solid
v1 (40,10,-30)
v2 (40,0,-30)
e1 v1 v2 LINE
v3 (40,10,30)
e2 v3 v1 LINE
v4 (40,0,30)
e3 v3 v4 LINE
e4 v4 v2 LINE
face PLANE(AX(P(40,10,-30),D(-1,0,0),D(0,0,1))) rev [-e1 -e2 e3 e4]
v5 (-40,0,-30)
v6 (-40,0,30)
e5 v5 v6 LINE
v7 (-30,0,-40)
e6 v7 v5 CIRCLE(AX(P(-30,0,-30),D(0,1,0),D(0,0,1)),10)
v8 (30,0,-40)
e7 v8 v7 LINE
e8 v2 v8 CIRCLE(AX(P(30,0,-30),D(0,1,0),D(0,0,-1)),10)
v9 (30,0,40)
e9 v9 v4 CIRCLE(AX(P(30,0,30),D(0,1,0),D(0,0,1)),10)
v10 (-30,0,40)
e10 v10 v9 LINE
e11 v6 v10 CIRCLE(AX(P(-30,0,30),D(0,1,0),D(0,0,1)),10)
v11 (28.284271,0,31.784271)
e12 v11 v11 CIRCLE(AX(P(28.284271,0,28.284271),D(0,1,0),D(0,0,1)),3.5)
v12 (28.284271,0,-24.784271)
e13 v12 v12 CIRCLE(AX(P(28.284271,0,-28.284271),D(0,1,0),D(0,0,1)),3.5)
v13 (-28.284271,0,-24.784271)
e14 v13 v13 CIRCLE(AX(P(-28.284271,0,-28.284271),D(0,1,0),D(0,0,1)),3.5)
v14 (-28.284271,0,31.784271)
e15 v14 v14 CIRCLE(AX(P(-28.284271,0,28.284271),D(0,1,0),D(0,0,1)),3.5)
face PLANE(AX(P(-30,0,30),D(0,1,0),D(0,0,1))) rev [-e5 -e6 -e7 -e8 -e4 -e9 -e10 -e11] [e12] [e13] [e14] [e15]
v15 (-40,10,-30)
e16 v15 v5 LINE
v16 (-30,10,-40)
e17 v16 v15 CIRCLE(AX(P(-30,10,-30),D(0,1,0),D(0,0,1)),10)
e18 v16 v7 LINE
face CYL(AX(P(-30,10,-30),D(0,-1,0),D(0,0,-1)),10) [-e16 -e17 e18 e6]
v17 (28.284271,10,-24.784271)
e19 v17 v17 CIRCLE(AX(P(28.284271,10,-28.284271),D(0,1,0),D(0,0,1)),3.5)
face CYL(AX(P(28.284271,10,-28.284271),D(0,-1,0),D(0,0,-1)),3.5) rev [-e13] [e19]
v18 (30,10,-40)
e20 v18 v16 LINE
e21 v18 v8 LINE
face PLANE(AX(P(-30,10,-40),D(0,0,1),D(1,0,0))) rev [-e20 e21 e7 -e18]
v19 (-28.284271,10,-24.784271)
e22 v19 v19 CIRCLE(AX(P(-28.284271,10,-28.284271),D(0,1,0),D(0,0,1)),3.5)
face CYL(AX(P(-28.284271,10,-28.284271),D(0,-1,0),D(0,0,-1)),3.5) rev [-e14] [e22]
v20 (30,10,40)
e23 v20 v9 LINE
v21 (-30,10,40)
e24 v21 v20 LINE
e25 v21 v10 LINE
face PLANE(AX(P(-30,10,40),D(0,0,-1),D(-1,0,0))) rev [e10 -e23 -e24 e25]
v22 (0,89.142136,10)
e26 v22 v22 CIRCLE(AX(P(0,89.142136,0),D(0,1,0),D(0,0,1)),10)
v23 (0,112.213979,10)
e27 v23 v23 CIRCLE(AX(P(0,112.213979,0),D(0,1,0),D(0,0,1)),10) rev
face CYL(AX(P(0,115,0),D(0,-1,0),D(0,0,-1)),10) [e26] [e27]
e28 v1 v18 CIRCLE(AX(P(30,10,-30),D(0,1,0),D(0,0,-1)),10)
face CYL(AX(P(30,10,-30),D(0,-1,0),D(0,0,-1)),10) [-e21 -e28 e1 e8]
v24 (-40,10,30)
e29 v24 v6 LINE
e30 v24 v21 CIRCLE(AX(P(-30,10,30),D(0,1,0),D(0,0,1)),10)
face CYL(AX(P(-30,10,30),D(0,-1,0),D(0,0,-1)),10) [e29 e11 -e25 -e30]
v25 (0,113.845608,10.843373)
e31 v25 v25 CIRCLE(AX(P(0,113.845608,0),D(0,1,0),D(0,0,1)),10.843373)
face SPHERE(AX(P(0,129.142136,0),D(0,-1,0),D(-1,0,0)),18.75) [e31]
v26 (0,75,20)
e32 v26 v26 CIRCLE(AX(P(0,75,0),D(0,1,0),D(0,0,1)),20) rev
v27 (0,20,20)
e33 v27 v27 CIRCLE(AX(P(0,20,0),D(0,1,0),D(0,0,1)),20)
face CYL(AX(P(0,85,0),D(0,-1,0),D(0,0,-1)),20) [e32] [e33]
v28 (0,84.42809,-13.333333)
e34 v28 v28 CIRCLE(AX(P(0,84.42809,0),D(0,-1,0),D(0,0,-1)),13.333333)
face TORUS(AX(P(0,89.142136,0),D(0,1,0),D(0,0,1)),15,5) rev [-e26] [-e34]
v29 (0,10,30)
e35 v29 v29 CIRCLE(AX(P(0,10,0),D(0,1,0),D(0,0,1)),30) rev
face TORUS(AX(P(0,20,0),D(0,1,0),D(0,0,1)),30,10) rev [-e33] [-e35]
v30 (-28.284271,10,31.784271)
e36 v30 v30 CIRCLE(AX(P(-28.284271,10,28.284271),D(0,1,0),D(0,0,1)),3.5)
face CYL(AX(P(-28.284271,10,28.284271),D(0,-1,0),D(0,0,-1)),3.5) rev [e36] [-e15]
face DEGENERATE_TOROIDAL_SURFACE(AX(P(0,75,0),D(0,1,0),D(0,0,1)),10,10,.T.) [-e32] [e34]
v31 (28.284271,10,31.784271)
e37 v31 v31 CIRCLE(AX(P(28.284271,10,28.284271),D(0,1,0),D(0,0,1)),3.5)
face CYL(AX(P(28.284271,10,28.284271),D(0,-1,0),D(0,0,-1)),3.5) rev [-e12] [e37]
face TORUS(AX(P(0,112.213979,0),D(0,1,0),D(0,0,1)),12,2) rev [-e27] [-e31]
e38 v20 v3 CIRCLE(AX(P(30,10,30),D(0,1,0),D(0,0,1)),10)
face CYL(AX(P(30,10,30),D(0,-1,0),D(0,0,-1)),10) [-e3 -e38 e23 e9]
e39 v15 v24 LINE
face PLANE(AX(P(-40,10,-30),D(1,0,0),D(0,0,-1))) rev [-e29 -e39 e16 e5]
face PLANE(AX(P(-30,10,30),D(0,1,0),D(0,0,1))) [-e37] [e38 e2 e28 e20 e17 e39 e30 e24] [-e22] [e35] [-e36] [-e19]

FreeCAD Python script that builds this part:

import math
import FreeCAD as App
import Part
import Sketcher


def edges_at(feature, points):
    """Names of the edges that pass closest to the given points."""
    edges = feature.Shape.Edges
    near = lambda p: min(range(len(edges)), key=lambda i: edges[i].distToShape(Part.Vertex(*p))[0])
    return sorted({f"Edge{near(p) + 1}" for p in points})

doc = App.newDocument("Part")
body = doc.addObject("PartDesign::Body", "Body")

# Sketch on XZ plane
sketch1 = body.newObject("Sketcher::SketchObject", "Sketch")
sketch1.AttachmentSupport = (doc.getObject("XZ_Plane"), [""])
sketch1.MapMode = "FlatFace"
sketch1.addGeometry([
    Part.LineSegment(App.Vector(30, -40, 0), App.Vector(-30, -40, 0)),  # 0
    Part.ArcOfCircle(Part.Circle(App.Vector(-30, -30, 0), App.Vector(0, 0, 1), 10), math.radians(180), math.radians(270)),  # 1
    Part.LineSegment(App.Vector(-40, -30, 0), App.Vector(-40, 30, 0)),  # 2
    Part.ArcOfCircle(Part.Circle(App.Vector(-30, 30, 0), App.Vector(0, 0, 1), 10), math.radians(90), math.radians(180)),  # 3
    Part.LineSegment(App.Vector(-30, 40, 0), App.Vector(30, 40, 0)),  # 4
    Part.ArcOfCircle(Part.Circle(App.Vector(30, 30, 0), App.Vector(0, 0, 1), 10), math.radians(0), math.radians(90)),  # 5
    Part.LineSegment(App.Vector(40, 30, 0), App.Vector(40, -30, 0)),  # 6
    Part.ArcOfCircle(Part.Circle(App.Vector(30, -30, 0), App.Vector(0, 0, 1), 10), math.radians(-90), math.radians(0)),  # 7
    Part.Circle(App.Vector(28.3, 28.3, 0), App.Vector(0, 0, 1), 3.5),  # 8
    Part.Circle(App.Vector(-28.3, 28.3, 0), App.Vector(0, 0, 1), 3.5),  # 9
    Part.Circle(App.Vector(28.3, -28.3, 0), App.Vector(0, 0, 1), 3.5),  # 10
    Part.Circle(App.Vector(-28.3, -28.3, 0), App.Vector(0, 0, 1), 3.5),  # 11
], False)
sketch1.addConstraint([
    Sketcher.Constraint("Tangent", 0, 2, 1, 2),
    Sketcher.Constraint("Tangent", 1, 1, 2, 1),
    Sketcher.Constraint("Tangent", 2, 2, 3, 2),
    Sketcher.Constraint("Tangent", 3, 1, 4, 1),
    Sketcher.Constraint("Tangent", 4, 2, 5, 2),
    Sketcher.Constraint("Tangent", 5, 1, 6, 1),
    Sketcher.Constraint("Tangent", 6, 2, 7, 2),
    Sketcher.Constraint("Tangent", 7, 1, 0, 1),
    Sketcher.Constraint("Horizontal", 0),
    Sketcher.Constraint("Vertical", 2),
    Sketcher.Constraint("Horizontal", 4),
    Sketcher.Constraint("Vertical", 6),
    Sketcher.Constraint("Equal", 1, 3),
    Sketcher.Constraint("Equal", 3, 5),
    Sketcher.Constraint("Equal", 5, 7),
    Sketcher.Constraint("Equal", 8, 9),
    Sketcher.Constraint("Equal", 9, 10),
    Sketcher.Constraint("Equal", 10, 11),
    Sketcher.Constraint("Symmetric", 1, 3, 5, 3, -1, 1),
    Sketcher.Constraint("Symmetric", 9, 3, 10, 3, -1, 1),
    Sketcher.Constraint("Symmetric", 8, 3, 11, 3, -1, 1),
    Sketcher.Constraint("Symmetric", 8, 3, 9, 3, -2),
    Sketcher.Constraint("Equal", 4, 2),
    Sketcher.Constraint("Diameter", 8, 7.0),
    Sketcher.Constraint("Radius", 1, 10.0),
    Sketcher.Constraint("DistanceX", 0, 2, 0, 1, 60.0),
    Sketcher.Constraint("DistanceX", -1, 1, 8, 3, 28.284271),
    Sketcher.Constraint("DistanceY", -1, 1, 8, 3, 28.284271),
])
pad1 = body.newObject("PartDesign::Pad", "Pad")
pad1.Profile = sketch1
pad1.Length = 10
pad1.Reversed = True

# Sketch on XZ plane
sketch2 = body.newObject("Sketcher::SketchObject", "Sketch001")
sketch2.AttachmentSupport = (doc.getObject("XZ_Plane"), [""])
sketch2.MapMode = "FlatFace"
sketch2.AttachmentOffset = App.Placement(App.Vector(0, 0, -10), App.Rotation())
sketch2.addGeometry(Part.Circle(App.Vector(0, 0, 0), App.Vector(0, 0, 1), 20), False)
sketch2.addConstraint([
    Sketcher.Constraint("Coincident", 0, 3, -1, 1),
    Sketcher.Constraint("Diameter", 0, 40.0),
])
pad2 = body.newObject("PartDesign::Pad", "Pad001")
pad2.Profile = sketch2
pad2.Length = 75
pad2.Reversed = True
doc.recompute()

fillet = body.newObject("PartDesign::Fillet", "Fillet")
fillet.Base = (pad2, edges_at(pad2, [(0, 10, -20), (0, 85, -20)]))
fillet.Radius = 10

# Sketch on XZ plane
sketch3 = body.newObject("Sketcher::SketchObject", "Sketch002")
sketch3.AttachmentSupport = (doc.getObject("XZ_Plane"), [""])
sketch3.MapMode = "FlatFace"
sketch3.AttachmentOffset = App.Placement(App.Vector(0, 0, -85), App.Rotation())
sketch3.addGeometry(Part.Circle(App.Vector(0, 0, 0), App.Vector(0, 0, 1), 10), False)
sketch3.addConstraint([
    Sketcher.Constraint("Coincident", 0, 3, -1, 1),
    Sketcher.Constraint("Diameter", 0, 20.0),
])
pad3 = body.newObject("PartDesign::Pad", "Pad002")
pad3.Profile = sketch3
pad3.Length = 30
pad3.Reversed = True
doc.recompute()

fillet2 = body.newObject("PartDesign::Fillet", "Fillet001")
fillet2.Base = (pad3, edges_at(pad3, [(0, 85, -10)]))
fillet2.Radius = 5

# Sketch on XY plane
sketch4 = body.newObject("Sketcher::SketchObject", "Sketch003")
sketch4.AttachmentSupport = (doc.getObject("XY_Plane"), [""])
sketch4.MapMode = "FlatFace"
sketch4.addGeometry([
    Part.LineSegment(App.Vector(0, 148, 0), App.Vector(0, 110, 0)),
    Part.ArcOfCircle(Part.Circle(App.Vector(0, 129, 0), App.Vector(0, 0, 1), 19), math.radians(-90), math.radians(90)),
], False)
sketch4.addConstraint([
    Sketcher.Constraint("Coincident", 0, 1, 1, 2),
    Sketcher.Constraint("Coincident", 1, 1, 0, 2),
    Sketcher.Constraint("Vertical", 0),
    Sketcher.Constraint("PointOnObject", 1, 3, -2),
    Sketcher.Constraint("PointOnObject", 0, 1, -2),
    Sketcher.Constraint("Radius", 1, 18.75),
    Sketcher.Constraint("DistanceY", -1, 1, 1, 3, 129.142136),
])
revolution = body.newObject("PartDesign::Revolution", "Revolution")
revolution.Profile = sketch4
revolution.ReferenceAxis = (sketch4, ["V_Axis"])
revolution.Angle = 360
doc.recompute()

fillet3 = body.newObject("PartDesign::Fillet", "Fillet002")
fillet3.Base = (revolution, edges_at(revolution, [(-7.071, 113.281, -7.071)]))
fillet3.Radius = 2

doc.recompute()
